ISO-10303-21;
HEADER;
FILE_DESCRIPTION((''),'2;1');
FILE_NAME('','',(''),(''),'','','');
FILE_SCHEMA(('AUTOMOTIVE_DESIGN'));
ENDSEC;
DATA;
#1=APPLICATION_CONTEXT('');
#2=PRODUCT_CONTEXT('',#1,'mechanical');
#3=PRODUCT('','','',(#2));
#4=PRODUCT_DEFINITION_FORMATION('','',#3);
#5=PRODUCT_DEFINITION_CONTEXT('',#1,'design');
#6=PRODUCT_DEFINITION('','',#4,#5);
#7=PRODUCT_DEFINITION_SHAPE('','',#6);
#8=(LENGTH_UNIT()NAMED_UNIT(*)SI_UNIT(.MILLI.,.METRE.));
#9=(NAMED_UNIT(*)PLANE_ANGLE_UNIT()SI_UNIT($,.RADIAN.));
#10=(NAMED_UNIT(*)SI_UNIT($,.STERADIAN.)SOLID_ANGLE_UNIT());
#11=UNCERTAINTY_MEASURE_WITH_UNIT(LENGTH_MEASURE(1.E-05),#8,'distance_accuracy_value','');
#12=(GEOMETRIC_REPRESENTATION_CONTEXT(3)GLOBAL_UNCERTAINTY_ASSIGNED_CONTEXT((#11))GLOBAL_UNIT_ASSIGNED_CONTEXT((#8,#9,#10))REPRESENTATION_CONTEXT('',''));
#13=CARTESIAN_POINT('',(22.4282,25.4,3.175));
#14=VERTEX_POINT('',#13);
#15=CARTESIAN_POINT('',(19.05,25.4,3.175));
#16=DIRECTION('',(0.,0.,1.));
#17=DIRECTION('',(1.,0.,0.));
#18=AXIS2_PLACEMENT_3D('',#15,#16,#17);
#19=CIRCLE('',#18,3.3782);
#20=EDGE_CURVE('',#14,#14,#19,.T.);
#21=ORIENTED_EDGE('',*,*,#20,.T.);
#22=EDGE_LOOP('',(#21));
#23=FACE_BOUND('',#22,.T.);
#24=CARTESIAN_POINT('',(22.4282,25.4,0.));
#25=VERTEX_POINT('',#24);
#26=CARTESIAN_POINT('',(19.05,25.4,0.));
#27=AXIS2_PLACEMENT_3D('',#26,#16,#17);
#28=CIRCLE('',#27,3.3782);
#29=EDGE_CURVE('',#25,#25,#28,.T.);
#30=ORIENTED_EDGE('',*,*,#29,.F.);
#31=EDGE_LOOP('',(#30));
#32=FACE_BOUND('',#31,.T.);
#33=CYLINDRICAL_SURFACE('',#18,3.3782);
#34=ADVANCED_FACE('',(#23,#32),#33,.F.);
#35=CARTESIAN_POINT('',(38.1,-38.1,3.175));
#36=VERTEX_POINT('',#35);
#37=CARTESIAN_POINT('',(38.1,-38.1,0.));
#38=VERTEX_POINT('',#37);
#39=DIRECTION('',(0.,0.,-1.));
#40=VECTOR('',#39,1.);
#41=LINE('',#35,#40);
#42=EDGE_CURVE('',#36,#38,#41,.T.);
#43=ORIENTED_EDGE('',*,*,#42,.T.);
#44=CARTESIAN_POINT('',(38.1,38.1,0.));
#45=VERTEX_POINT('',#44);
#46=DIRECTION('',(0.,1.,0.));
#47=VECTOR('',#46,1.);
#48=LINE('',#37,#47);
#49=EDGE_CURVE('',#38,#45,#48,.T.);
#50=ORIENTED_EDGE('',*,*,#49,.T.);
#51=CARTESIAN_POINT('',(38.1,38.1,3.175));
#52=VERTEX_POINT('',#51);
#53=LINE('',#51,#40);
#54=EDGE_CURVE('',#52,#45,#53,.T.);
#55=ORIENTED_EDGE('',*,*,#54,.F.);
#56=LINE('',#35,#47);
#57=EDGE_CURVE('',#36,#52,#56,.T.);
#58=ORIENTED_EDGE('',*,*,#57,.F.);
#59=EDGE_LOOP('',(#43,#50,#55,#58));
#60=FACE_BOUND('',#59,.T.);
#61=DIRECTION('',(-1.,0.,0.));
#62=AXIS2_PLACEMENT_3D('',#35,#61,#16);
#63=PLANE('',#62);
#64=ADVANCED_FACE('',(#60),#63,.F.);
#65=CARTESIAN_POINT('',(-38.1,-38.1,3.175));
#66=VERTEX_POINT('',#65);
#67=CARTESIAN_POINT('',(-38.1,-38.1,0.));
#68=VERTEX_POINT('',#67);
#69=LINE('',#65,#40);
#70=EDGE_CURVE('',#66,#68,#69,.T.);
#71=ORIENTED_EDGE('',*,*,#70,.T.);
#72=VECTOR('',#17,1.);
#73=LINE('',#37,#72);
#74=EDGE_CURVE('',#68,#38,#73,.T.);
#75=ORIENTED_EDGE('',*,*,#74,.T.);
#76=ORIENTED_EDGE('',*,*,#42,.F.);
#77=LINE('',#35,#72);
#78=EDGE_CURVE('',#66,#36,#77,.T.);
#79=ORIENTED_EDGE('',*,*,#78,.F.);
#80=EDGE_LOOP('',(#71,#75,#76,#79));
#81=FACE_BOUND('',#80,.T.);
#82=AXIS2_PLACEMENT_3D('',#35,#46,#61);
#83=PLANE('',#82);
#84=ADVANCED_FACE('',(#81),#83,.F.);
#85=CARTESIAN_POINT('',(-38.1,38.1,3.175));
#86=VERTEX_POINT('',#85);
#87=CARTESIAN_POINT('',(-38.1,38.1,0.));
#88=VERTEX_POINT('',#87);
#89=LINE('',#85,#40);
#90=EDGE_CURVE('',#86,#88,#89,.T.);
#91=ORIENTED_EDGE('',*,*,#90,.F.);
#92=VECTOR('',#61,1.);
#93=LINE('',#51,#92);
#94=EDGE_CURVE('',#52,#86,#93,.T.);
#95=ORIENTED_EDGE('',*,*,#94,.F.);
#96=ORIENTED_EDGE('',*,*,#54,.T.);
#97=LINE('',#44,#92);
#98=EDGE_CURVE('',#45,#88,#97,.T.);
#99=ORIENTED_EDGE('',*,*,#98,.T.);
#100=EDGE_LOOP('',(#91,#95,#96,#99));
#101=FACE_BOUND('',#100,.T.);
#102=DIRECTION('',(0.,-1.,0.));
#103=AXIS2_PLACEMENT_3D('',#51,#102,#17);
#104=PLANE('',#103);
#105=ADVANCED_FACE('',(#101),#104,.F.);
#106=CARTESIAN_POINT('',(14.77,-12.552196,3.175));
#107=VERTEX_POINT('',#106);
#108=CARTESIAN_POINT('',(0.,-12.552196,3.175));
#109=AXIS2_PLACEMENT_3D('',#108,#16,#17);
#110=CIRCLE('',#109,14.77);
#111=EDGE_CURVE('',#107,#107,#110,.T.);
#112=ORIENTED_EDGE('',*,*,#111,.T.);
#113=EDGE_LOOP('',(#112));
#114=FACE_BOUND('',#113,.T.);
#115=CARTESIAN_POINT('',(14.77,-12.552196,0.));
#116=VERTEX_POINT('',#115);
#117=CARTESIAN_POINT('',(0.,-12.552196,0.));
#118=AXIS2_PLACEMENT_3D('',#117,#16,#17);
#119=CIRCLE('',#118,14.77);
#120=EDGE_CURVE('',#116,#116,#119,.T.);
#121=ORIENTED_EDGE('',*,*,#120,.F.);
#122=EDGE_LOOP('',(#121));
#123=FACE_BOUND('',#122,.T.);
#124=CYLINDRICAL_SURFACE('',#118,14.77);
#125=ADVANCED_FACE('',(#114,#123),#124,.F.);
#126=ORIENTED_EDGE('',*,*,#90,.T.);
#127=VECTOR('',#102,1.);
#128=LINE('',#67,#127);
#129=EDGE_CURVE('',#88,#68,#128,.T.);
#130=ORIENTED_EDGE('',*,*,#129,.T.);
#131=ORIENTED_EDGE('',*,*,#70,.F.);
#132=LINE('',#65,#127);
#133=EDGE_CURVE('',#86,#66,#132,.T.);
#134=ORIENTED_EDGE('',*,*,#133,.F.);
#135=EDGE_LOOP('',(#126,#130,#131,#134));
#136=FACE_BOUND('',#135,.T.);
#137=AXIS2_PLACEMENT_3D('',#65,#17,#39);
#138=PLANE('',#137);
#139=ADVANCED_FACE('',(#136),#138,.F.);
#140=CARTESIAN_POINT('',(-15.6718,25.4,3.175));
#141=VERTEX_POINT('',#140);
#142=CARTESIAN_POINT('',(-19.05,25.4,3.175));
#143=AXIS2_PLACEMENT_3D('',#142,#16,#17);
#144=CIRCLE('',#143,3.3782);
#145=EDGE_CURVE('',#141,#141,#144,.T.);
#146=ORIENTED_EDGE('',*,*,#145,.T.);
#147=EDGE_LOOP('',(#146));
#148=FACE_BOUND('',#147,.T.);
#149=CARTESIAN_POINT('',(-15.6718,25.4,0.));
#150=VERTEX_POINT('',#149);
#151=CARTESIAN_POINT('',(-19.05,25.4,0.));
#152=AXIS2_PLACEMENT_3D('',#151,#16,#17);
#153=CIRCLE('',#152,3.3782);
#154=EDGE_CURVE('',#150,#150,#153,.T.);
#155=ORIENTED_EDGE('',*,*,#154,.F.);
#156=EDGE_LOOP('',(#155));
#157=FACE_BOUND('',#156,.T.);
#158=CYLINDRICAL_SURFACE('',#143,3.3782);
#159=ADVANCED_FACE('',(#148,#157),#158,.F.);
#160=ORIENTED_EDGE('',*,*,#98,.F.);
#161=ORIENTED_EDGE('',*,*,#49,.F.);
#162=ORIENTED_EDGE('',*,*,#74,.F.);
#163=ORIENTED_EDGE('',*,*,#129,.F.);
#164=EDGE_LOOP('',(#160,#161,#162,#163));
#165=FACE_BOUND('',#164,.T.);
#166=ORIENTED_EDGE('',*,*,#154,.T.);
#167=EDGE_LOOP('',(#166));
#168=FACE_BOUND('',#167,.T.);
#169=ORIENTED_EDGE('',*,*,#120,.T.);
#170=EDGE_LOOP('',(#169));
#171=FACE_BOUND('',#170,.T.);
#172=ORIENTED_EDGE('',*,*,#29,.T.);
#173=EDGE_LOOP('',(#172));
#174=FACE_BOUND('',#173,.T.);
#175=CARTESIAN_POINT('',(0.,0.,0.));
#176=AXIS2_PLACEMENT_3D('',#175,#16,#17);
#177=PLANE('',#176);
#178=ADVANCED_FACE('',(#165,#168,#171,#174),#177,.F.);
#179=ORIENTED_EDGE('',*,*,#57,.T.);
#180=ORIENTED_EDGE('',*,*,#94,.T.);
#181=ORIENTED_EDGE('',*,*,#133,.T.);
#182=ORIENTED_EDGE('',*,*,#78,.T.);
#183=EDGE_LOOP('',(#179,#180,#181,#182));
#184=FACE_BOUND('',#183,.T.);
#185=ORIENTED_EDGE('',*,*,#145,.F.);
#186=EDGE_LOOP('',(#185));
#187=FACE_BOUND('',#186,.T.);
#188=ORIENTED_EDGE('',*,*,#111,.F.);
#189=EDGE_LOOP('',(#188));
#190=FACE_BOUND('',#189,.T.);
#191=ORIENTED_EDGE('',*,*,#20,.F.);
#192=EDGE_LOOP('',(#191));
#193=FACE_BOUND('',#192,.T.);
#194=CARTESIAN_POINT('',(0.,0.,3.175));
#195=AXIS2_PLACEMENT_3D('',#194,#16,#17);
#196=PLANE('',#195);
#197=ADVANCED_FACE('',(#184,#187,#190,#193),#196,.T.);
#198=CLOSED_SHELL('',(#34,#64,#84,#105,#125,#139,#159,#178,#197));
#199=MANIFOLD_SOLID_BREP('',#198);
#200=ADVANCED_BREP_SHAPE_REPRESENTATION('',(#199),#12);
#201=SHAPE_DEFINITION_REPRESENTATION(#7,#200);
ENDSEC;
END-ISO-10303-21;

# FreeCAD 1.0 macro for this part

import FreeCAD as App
import Part
import Sketcher
from FreeCAD import Vector
Q = App.Units.Quantity

doc = App.newDocument("Part")
body = doc.addObject("PartDesign::Body", "Body")

# Sketch on XY plane
sketch1 = doc.addObject("Sketcher::SketchObject", "Sketch")
body.addObject(sketch1)
sketch1.AttachmentSupport = (doc.XY_Plane, [""])
sketch1.MapMode = "FlatFace"
sketch1.addGeometry(Part.LineSegment(Vector(-38, 38, 0), Vector(-38, -38, 0)), False)
sketch1.addGeometry(Part.LineSegment(Vector(-38, -38, 0), Vector(38, -38, 0)), False)
sketch1.addGeometry(Part.LineSegment(Vector(38, -38, 0), Vector(38, 38, 0)), False)
sketch1.addGeometry(Part.LineSegment(Vector(38, 38, 0), Vector(-38, 38, 0)), False)
sketch1.addConstraint(Sketcher.Constraint("Coincident", 0, 2, 1, 1))
sketch1.addConstraint(Sketcher.Constraint("Coincident", 1, 2, 2, 1))
sketch1.addConstraint(Sketcher.Constraint("Coincident", 2, 2, 3, 1))
sketch1.addConstraint(Sketcher.Constraint("Coincident", 3, 2, 0, 1))
sketch1.addConstraint(Sketcher.Constraint("Vertical", 0))
sketch1.addConstraint(Sketcher.Constraint("Horizontal", 1))
sketch1.addConstraint(Sketcher.Constraint("Vertical", 2))
sketch1.addConstraint(Sketcher.Constraint("Horizontal", 3))
sketch1.addConstraint(Sketcher.Constraint("Symmetric", 0, 2, 2, 2, -1, 1))
sketch1.addConstraint(Sketcher.Constraint("Equal", 3, 0))
sketch1.addConstraint(Sketcher.Constraint("DistanceX", 1, 1, 1, 2, Q("3 in")))
pad1 = doc.addObject("PartDesign::Pad", "Pad")
body.addObject(pad1)
pad1.Profile = sketch1
pad1.Length = Q("0.125 in")

# Sketch on XY plane
sketch2 = doc.addObject("Sketcher::SketchObject", "Sketch001")
body.addObject(sketch2)
sketch2.AttachmentSupport = (doc.XY_Plane, [""])
sketch2.MapMode = "FlatFace"
sketch2.AttachmentOffset = App.Placement(Vector(0, 0, 0.125 * 25.4), App.Rotation())
sketch2.addGeometry(Part.Circle(Vector(19.1, 25.4, 0), Vector(0, 0, 1), 3.4), False)
sketch2.addGeometry(Part.Circle(Vector(-19.1, 25.4, 0), Vector(0, 0, 1), 3.4), False)
sketch2.addConstraint(Sketcher.Constraint("Equal", 0, 1))
sketch2.addConstraint(Sketcher.Constraint("Symmetric", 0, 3, 1, 3, -2))
sketch2.addConstraint(Sketcher.Constraint("Diameter", 0, Q("0.266 in")))
sketch2.addConstraint(Sketcher.Constraint("DistanceY", -1, 1, 0, 3, Q("1 in")))
sketch2.addConstraint(Sketcher.Constraint("DistanceX", 1, 3, 0, 3, Q("1.5 in")))
doc.recompute()
hole = doc.addObject("PartDesign::Hole", "Hole")
body.addObject(hole)
hole.Profile = sketch2
hole.ThreadType = "None"
hole.Diameter = Q("0.266 in")
hole.DepthType = "ThroughAll"

# Sketch on XY plane
sketch3 = doc.addObject("Sketcher::SketchObject", "Sketch002")
body.addObject(sketch3)
sketch3.AttachmentSupport = (doc.XY_Plane, [""])
sketch3.MapMode = "FlatFace"
sketch3.AttachmentOffset = App.Placement(Vector(0, 0, 0.125 * 25.4), App.Rotation())
sketch3.addGeometry(Part.Circle(Vector(0, -13, 0), Vector(0, 0, 1), 15), False)
sketch3.addConstraint(Sketcher.Constraint("PointOnObject", 0, 3, -2))
sketch3.addConstraint(Sketcher.Constraint("Diameter", 0, 29.54))
sketch3.addConstraint(Sketcher.Constraint("DistanceY", 0, 3, -1, 1, 12.552196))
pocket1 = doc.addObject("PartDesign::Pocket", "Pocket")
body.addObject(pocket1)
pocket1.Profile = sketch3
pocket1.Type = "ThroughAll"
pocket1.Midplane = True

doc.recompute()
